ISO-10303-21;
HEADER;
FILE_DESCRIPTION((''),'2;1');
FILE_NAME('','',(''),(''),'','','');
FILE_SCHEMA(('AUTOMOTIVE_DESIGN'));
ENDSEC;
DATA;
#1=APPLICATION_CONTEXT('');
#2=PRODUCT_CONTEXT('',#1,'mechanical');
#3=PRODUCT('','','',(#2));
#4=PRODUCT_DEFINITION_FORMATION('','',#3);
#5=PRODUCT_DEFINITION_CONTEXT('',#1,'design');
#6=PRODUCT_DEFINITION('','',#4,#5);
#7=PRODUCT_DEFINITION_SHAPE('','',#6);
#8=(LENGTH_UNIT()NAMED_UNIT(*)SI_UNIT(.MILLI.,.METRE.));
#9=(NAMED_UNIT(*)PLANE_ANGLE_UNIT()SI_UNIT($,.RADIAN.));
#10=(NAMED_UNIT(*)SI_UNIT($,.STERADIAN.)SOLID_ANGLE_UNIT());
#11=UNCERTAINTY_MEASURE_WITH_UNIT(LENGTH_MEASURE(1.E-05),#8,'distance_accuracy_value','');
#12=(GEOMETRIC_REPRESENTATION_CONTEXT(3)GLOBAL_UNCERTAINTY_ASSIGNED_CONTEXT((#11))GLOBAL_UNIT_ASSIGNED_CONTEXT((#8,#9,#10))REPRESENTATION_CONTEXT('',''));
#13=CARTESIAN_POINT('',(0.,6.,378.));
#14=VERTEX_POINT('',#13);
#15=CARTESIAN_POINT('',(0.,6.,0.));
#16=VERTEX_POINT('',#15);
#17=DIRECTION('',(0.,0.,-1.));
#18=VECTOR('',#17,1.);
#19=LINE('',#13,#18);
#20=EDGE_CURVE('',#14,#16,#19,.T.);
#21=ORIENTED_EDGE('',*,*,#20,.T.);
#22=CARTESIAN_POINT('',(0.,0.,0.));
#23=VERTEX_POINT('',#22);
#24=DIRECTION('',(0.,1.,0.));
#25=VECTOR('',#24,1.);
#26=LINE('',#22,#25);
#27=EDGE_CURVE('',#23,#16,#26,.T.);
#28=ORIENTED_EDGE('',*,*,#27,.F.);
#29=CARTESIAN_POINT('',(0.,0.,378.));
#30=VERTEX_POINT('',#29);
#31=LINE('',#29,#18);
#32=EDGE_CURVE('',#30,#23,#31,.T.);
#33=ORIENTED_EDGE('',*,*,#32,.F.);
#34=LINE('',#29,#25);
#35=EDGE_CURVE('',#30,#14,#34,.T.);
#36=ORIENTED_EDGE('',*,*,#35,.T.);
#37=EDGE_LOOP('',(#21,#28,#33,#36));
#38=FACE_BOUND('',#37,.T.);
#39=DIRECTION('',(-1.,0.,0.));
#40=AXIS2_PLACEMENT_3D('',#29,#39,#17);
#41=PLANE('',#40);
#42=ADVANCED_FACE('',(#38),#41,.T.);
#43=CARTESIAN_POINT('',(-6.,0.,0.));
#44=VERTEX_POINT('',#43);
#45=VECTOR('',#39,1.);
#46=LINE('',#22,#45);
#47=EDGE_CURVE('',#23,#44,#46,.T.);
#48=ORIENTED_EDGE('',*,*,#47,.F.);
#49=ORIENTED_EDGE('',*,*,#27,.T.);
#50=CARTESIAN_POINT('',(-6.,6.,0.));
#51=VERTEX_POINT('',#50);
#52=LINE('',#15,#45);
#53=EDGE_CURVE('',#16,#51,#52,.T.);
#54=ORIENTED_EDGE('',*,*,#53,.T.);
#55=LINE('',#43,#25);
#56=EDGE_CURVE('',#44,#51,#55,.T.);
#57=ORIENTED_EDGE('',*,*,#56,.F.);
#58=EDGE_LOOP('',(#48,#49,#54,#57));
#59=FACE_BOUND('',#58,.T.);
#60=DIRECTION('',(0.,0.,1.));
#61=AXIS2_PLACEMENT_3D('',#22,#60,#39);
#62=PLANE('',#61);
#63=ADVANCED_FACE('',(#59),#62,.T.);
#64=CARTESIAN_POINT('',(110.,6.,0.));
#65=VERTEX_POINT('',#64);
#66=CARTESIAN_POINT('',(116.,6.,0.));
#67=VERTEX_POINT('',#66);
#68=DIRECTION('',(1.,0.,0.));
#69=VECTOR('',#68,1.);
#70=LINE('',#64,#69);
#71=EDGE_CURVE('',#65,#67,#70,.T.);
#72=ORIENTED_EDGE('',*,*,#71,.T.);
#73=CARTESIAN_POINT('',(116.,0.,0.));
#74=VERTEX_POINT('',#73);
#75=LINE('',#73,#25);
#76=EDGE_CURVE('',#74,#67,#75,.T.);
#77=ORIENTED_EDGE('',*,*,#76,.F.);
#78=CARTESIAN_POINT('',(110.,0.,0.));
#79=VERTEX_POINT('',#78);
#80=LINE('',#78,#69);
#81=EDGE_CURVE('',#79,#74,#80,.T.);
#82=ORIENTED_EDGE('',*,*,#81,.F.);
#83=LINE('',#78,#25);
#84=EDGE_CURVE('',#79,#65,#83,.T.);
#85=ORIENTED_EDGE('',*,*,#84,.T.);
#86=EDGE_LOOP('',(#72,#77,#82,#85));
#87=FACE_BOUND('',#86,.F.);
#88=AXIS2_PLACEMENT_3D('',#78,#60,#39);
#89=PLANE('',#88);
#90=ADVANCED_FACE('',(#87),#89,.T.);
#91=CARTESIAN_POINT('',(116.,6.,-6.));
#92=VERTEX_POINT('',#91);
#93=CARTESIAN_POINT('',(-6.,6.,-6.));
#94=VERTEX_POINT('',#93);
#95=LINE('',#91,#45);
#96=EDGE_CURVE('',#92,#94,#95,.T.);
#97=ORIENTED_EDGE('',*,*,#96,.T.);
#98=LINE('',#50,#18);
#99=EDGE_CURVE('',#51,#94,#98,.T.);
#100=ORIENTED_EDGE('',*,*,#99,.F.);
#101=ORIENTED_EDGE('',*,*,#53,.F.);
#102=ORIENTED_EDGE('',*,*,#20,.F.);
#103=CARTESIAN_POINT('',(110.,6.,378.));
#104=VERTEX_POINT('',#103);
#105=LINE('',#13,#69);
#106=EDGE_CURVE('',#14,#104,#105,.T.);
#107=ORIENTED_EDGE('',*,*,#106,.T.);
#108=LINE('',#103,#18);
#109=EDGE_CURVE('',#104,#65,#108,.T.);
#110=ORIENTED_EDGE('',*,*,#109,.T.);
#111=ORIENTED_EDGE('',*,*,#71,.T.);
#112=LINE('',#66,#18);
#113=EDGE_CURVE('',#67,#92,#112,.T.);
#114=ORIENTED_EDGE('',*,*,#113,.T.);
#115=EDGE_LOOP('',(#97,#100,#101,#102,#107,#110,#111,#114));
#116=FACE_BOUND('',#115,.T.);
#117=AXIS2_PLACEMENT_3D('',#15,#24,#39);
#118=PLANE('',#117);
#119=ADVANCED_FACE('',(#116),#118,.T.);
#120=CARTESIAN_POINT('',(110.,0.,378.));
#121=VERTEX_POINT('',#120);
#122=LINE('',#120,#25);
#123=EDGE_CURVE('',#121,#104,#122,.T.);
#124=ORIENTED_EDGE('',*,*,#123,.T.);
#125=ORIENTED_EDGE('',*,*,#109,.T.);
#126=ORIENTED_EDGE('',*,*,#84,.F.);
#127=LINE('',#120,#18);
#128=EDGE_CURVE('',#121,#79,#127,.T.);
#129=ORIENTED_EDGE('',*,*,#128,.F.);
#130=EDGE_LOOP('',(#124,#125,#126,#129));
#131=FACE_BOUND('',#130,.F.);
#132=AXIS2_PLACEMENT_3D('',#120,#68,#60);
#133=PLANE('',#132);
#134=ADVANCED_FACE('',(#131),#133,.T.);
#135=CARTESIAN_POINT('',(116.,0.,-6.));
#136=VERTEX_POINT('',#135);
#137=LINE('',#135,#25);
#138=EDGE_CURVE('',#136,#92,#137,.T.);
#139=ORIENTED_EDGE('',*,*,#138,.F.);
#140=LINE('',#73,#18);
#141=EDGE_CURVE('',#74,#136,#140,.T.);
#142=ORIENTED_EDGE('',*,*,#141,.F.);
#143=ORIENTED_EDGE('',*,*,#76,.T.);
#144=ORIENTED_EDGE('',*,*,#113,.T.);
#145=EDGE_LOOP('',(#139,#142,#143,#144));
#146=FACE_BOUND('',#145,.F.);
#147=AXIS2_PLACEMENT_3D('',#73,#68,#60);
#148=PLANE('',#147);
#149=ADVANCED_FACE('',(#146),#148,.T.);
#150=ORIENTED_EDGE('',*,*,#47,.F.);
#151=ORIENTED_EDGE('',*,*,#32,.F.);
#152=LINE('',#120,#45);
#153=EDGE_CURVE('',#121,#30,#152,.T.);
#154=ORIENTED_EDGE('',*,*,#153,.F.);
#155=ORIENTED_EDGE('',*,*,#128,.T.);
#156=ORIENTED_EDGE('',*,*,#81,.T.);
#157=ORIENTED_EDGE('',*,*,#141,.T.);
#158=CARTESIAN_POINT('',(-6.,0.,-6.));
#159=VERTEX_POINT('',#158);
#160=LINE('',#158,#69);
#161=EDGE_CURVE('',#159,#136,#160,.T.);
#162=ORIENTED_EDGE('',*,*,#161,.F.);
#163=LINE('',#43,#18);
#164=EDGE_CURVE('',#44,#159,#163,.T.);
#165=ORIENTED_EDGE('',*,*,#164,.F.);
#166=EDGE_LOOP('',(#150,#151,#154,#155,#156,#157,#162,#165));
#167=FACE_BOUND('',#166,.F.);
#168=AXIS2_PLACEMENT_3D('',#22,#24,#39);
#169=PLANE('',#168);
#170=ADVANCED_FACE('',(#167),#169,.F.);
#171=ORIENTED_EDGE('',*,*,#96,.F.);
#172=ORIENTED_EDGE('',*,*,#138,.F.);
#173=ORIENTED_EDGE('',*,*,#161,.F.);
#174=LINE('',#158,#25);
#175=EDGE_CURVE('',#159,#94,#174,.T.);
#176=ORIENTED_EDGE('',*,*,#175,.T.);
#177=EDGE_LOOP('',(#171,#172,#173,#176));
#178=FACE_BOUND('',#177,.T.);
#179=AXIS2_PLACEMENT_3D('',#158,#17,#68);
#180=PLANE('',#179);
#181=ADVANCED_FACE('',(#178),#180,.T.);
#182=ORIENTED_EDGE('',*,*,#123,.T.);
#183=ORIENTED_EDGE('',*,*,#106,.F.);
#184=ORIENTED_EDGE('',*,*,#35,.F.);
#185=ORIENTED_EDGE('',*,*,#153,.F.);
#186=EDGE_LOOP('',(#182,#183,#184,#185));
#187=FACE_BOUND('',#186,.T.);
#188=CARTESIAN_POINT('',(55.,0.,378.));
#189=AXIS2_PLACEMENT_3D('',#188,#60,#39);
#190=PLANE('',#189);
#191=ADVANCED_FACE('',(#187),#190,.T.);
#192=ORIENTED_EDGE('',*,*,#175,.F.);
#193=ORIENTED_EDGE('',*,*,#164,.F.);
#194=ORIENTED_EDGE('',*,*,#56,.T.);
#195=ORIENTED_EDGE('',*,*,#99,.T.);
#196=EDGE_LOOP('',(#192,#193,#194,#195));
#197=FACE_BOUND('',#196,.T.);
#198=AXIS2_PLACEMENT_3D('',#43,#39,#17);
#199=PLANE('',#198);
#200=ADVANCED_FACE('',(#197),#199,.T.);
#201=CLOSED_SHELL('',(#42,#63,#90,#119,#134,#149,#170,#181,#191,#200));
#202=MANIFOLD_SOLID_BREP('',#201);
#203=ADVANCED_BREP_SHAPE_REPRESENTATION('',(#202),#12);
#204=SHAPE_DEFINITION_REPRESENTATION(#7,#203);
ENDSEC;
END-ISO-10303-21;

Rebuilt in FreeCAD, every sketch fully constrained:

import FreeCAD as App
import Part
import Sketcher

V = App.Vector
Q = App.Units.Quantity

doc = App.newDocument("Part")
body = doc.addObject("PartDesign::Body", "Body")

# Sketch on XZ plane
sketch1 = body.newObject("Sketcher::SketchObject", "Sketch")
sketch1.AttachmentSupport = (doc.getObject("XZ_Plane"), [""])
sketch1.MapMode = "FlatFace"
sketch1.addGeometry([
    Part.LineSegment(V(-6, 0, 0), V(0, 0, 0)),  # 0
    Part.LineSegment(V(0, 0, 0), V(0, 378, 0)),  # 1
    Part.LineSegment(V(0, 378, 0), V(55, 378, 0)),  # 2
    Part.LineSegment(V(55, 378, 0), V(55, -6, 0)),  # 3
    Part.LineSegment(V(55, -6, 0), V(-6, -6, 0)),  # 4
    Part.LineSegment(V(-6, -6, 0), V(-6, 0, 0)),  # 5
], False)
sketch1.addConstraint([
    Sketcher.Constraint("Coincident", 0, 2, 1, 1),
    Sketcher.Constraint("Coincident", 1, 2, 2, 1),
    Sketcher.Constraint("Coincident", 2, 2, 3, 1),
    Sketcher.Constraint("Coincident", 3, 2, 4, 1),
    Sketcher.Constraint("Coincident", 4, 2, 5, 1),
    Sketcher.Constraint("Coincident", 5, 2, 0, 1),
    Sketcher.Constraint("Horizontal", 0),
    Sketcher.Constraint("Vertical", 1),
    Sketcher.Constraint("Horizontal", 2),
    Sketcher.Constraint("Vertical", 3),
    Sketcher.Constraint("Horizontal", 4),
    Sketcher.Constraint("Vertical", 5),
    Sketcher.Constraint("Coincident", 0, 2, -1, 1),
    Sketcher.Constraint("Equal", 0, 5),
    Sketcher.Constraint("DistanceX", 0, 1, 0, 2, Q("6 mm")),
    Sketcher.Constraint("DistanceX", 2, 1, 2, 2, Q("55 mm")),
    Sketcher.Constraint("DistanceY", 3, 2, 3, 1, Q("384 mm")),
])
pad1 = body.newObject("PartDesign::Pad", "Pad")
pad1.Profile = sketch1
pad1.Length = 6
pad1.Reversed = True
doc.recompute()

datumplane = body.newObject("PartDesign::Plane", "DatumPlane")
datumplane.AttachmentSupport = (doc.getObject("YZ_Plane"), [""])
datumplane.MapMode = "FlatFace"
datumplane.AttachmentOffset = App.Placement(V(0, 0, 55), App.Rotation())
mirrored = body.newObject("PartDesign::Mirrored", "Mirrored")
mirrored.Originals = [pad1]
mirrored.MirrorPlane = (datumplane, [""])
body.Tip = mirrored

doc.recompute()
